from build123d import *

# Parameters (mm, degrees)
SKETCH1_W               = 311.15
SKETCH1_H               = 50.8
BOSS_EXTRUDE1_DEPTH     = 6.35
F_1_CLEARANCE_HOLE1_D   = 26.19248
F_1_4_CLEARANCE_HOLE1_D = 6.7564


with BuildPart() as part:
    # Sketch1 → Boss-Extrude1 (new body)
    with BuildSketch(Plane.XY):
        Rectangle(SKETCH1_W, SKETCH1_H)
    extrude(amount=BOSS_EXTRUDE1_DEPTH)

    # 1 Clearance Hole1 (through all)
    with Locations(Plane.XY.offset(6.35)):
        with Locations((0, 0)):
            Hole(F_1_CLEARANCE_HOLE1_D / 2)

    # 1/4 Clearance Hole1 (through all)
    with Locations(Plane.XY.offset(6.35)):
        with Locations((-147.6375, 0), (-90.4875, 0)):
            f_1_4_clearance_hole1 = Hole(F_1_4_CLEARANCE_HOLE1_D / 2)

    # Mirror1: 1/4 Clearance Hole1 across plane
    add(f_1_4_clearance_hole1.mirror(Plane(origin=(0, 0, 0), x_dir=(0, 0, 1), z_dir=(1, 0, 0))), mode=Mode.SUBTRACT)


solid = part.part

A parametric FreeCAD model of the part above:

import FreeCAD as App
import Part
import Sketcher
from FreeCAD import Vector
Q = App.Units.Quantity


def add_polygon(sketch, points):
    """Adds a closed chain of lines whose ends are joined by coincident constraints."""
    first, n = sketch.GeometryCount, len(points)
    for a, b in zip(points, points[1:] + points[:1]):
        sketch.addGeometry(Part.LineSegment(App.Vector(*a, 0), App.Vector(*b, 0)), False)
    for i in range(n):
        sketch.addConstraint(Sketcher.Constraint("Coincident", first + i, 2, first + (i + 1) % n, 1))

doc = App.newDocument("Part")
body = doc.addObject("PartDesign::Body", "Body")

# Sketch on XY plane
sketch1 = body.newObject("Sketcher::SketchObject", "Sketch")
sketch1.AttachmentSupport = (doc.getObject("XY_Plane"), [""])
sketch1.MapMode = "FlatFace"
add_polygon(sketch1, [(-156, 25), (-156, -25), (156, -25), (156, 25)])  # lines 0-3
sketch1.addConstraint([
    Sketcher.Constraint("Vertical", 0),
    Sketcher.Constraint("Horizontal", 1),
    Sketcher.Constraint("Vertical", 2),
    Sketcher.Constraint("Horizontal", 3),
    Sketcher.Constraint("Symmetric", 0, 2, 2, 2, -1, 1),
    Sketcher.Constraint("DistanceY", 0, 2, 0, 1, Q("2 in")),
    Sketcher.Constraint("DistanceX", 1, 1, 1, 2, Q("12.25 in")),
])
pad1 = body.newObject("PartDesign::Pad", "Pad")
pad1.Profile = sketch1
pad1.Length = Q("0.25 in")

# Sketch on XY plane
sketch2 = body.newObject("Sketcher::SketchObject", "Sketch001")
sketch2.AttachmentSupport = (doc.getObject("XY_Plane"), [""])
sketch2.MapMode = "FlatFace"
sketch2.AttachmentOffset = App.Placement(Vector(0, 0, 0.25 * 25.4), App.Rotation())
sketch2.addGeometry(Part.Circle(Vector(0, 0, 0), Vector(0, 0, 1), 13), False)
sketch2.addConstraint([
    Sketcher.Constraint("Coincident", 0, 3, -1, 1),
    Sketcher.Constraint("Diameter", 0, Q("1.0312 in")),
])
doc.recompute()
hole = body.newObject("PartDesign::Hole", "Hole")
hole.Profile = sketch2
hole.ThreadType = "None"
hole.Diameter = Q("1.0312 in")
hole.DepthType = "ThroughAll"

# Sketch on XY plane
sketch3 = body.newObject("Sketcher::SketchObject", "Sketch002")
sketch3.AttachmentSupport = (doc.getObject("XY_Plane"), [""])
sketch3.MapMode = "FlatFace"
sketch3.AttachmentOffset = App.Placement(Vector(0, 0, 0.25 * 25.4), App.Rotation())
sketch3.addGeometry([
    Part.Circle(Vector(-147.6, 0, 0), Vector(0, 0, 1), 3.4),
    Part.Circle(Vector(-90.5, 0, 0), Vector(0, 0, 1), 3.4),
], False)
sketch3.addConstraint([
    Sketcher.Constraint("Equal", 0, 1),
    Sketcher.Constraint("PointOnObject", 0, 3, -1),
    Sketcher.Constraint("PointOnObject", 1, 3, -1),
    Sketcher.Constraint("Diameter", 0, Q("0.266 in")),
    Sketcher.Constraint("DistanceX", 0, 3, 1, 3, Q("2.25 in")),
    Sketcher.Constraint("DistanceX", 0, 3, -1, 1, Q("5.8125 in")),
])
doc.recompute()
hole2 = body.newObject("PartDesign::Hole", "Hole001")
hole2.Profile = sketch3
hole2.ThreadType = "None"
hole2.Diameter = Q("0.266 in")
hole2.DepthType = "ThroughAll"
doc.recompute()

mirrored = body.newObject("PartDesign::Mirrored", "Mirrored")
mirrored.Originals = [hole2]
mirrored.MirrorPlane = (doc.getObject("YZ_Plane"), [""])
body.Tip = mirrored

doc.recompute()
